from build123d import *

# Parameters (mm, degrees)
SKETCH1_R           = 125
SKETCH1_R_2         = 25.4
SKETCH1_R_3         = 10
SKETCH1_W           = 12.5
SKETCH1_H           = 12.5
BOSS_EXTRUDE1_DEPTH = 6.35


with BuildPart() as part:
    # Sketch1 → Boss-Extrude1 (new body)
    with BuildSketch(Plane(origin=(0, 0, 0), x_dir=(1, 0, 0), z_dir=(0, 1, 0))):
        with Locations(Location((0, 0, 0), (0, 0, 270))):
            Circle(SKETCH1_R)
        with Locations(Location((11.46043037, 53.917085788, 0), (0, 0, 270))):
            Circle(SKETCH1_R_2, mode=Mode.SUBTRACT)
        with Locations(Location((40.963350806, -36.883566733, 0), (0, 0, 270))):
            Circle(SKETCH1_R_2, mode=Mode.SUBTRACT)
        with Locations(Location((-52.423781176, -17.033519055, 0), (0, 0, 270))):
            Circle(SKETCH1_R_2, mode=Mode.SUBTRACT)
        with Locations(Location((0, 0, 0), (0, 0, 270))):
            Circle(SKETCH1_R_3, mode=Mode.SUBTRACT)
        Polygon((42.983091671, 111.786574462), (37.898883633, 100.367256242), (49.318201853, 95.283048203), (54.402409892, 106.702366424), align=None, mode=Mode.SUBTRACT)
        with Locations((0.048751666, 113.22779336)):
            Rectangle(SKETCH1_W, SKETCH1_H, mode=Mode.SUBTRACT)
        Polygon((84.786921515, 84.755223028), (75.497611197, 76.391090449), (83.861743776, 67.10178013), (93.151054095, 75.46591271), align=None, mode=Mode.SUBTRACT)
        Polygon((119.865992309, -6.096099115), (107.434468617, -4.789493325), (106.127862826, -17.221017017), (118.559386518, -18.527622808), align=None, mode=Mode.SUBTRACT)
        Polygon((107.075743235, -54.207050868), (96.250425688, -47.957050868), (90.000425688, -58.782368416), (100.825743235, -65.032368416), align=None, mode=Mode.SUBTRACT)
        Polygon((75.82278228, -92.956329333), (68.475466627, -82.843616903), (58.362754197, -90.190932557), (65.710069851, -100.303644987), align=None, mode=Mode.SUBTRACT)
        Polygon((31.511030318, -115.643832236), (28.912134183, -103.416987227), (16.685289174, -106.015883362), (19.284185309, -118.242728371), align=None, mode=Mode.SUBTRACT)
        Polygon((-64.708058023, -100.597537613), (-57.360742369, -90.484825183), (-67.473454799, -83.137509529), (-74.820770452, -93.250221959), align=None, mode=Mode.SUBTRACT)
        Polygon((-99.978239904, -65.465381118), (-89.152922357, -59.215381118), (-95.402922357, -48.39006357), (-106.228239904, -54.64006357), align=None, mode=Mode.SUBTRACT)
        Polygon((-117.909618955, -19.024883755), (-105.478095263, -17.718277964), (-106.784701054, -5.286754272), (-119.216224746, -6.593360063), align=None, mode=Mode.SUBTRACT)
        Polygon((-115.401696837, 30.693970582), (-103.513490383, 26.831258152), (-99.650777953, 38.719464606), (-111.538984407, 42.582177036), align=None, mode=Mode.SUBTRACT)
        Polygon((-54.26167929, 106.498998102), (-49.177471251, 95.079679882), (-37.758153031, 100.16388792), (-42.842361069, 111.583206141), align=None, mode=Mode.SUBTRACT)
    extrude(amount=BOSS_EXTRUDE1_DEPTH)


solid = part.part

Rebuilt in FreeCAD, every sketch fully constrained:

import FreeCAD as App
import Part
import Sketcher
from FreeCAD import Vector
Q = App.Units.Quantity


def add_polygon(sketch, points):
    """Adds a closed chain of lines whose ends are joined by coincident constraints."""
    first, n = sketch.GeometryCount, len(points)
    for a, b in zip(points, points[1:] + points[:1]):
        sketch.addGeometry(Part.LineSegment(App.Vector(*a, 0), App.Vector(*b, 0)), False)
    for i in range(n):
        sketch.addConstraint(Sketcher.Constraint("Coincident", first + i, 2, first + (i + 1) % n, 1))

doc = App.newDocument("Part")
body = doc.addObject("PartDesign::Body", "Body")

# Sketch on XZ plane
sketch1 = doc.addObject("Sketcher::SketchObject", "Sketch")
body.addObject(sketch1)
sketch1.AttachmentSupport = (doc.XZ_Plane, [""])
sketch1.MapMode = "FlatFace"
sketch1.addGeometry(Part.Circle(Vector(0, 0, 0), Vector(0, 0, 1), 125), False)  # 0
add_polygon(sketch1, [(-104, -27), (-115, -31), (-112, -43), (-100, -39)])  # lines 1-4
add_polygon(sketch1, [(-49, -95), (-54, -106), (-43, -112), (-38, -100)])  # lines 5-8
add_polygon(sketch1, [(6, -107), (-6, -107), (-6, -119), (6, -119)])  # lines 9-12
add_polygon(sketch1, [(-105, 18), (-118, 19), (-119, 7), (-107, 5)])  # lines 13-16
add_polygon(sketch1, [(-89, 59), (-100, 65), (-106, 55), (-95, 48)])  # lines 17-20
add_polygon(sketch1, [(-57, 90), (-65, 101), (-75, 93), (-67, 83)])  # lines 21-24
sketch1.addGeometry(Part.Circle(Vector(-52, 17, 0), Vector(0, 0, 1), 25), False)  # 25
sketch1.addGeometry(Part.Circle(Vector(0, 0, 0), Vector(0, 0, 1), 10), False)  # 26
add_polygon(sketch1, [(38, -100), (43, -112), (54, -107), (49, -95)])  # lines 27-30
sketch1.addGeometry(Part.Circle(Vector(11, -54, 0), Vector(0, 0, 1), 25), False)  # 31
add_polygon(sketch1, [(75, -76), (85, -85), (93, -75), (84, -67)])  # lines 32-35
sketch1.addGeometry(Part.Circle(Vector(41, 37, 0), Vector(0, 0, 1), 25), False)  # 36
add_polygon(sketch1, [(29, 103), (32, 116), (19, 118), (17, 106)])  # lines 37-40
add_polygon(sketch1, [(107, 5), (120, 6), (119, 19), (106, 17)])  # lines 41-44
add_polygon(sketch1, [(96, 48), (107, 54), (101, 65), (90, 59)])  # lines 45-48
add_polygon(sketch1, [(68, 83), (76, 93), (66, 100), (58, 90)])  # lines 49-52
sketch1.addConstraint([
    Sketcher.Constraint("Horizontal", 9),
    Sketcher.Constraint("Vertical", 10),
    Sketcher.Constraint("Horizontal", 11),
    Sketcher.Constraint("Vertical", 12),
    Sketcher.Constraint("Coincident", 0, 3, -1, 1),
    Sketcher.Constraint("Coincident", 26, 3, -1, 1),
    Sketcher.Constraint("Equal", 25, 31),
    Sketcher.Constraint("Equal", 31, 36),
    Sketcher.Constraint("Perpendicular", 1, 2),
    Sketcher.Constraint("Perpendicular", 2, 3),
    Sketcher.Constraint("Perpendicular", 3, 4),
    Sketcher.Constraint("Perpendicular", 5, 6),
    Sketcher.Constraint("Perpendicular", 6, 7),
    Sketcher.Constraint("Perpendicular", 7, 8),
    Sketcher.Constraint("Perpendicular", 13, 14),
    Sketcher.Constraint("Perpendicular", 14, 15),
    Sketcher.Constraint("Perpendicular", 15, 16),
    Sketcher.Constraint("Perpendicular", 17, 18),
    Sketcher.Constraint("Perpendicular", 18, 19),
    Sketcher.Constraint("Perpendicular", 19, 20),
    Sketcher.Constraint("Perpendicular", 21, 22),
    Sketcher.Constraint("Perpendicular", 22, 23),
    Sketcher.Constraint("Perpendicular", 23, 24),
    Sketcher.Constraint("Perpendicular", 27, 28),
    Sketcher.Constraint("Perpendicular", 28, 29),
    Sketcher.Constraint("Perpendicular", 29, 30),
    Sketcher.Constraint("Perpendicular", 32, 33),
    Sketcher.Constraint("Perpendicular", 33, 34),
    Sketcher.Constraint("Perpendicular", 34, 35),
    Sketcher.Constraint("Perpendicular", 37, 38),
    Sketcher.Constraint("Perpendicular", 38, 39),
    Sketcher.Constraint("Perpendicular", 39, 40),
    Sketcher.Constraint("Perpendicular", 41, 42),
    Sketcher.Constraint("Perpendicular", 42, 43),
    Sketcher.Constraint("Perpendicular", 43, 44),
    Sketcher.Constraint("Perpendicular", 45, 46),
    Sketcher.Constraint("Perpendicular", 46, 47),
    Sketcher.Constraint("Perpendicular", 47, 48),
    Sketcher.Constraint("Perpendicular", 49, 50),
    Sketcher.Constraint("Perpendicular", 50, 51),
    Sketcher.Constraint("Perpendicular", 51, 52),
    Sketcher.Constraint("Equal", 11, 10),
    Sketcher.Constraint("Equal", 1, 2),
    Sketcher.Constraint("Equal", 4, 5),
    Sketcher.Constraint("Equal", 5, 6),
    Sketcher.Constraint("Equal", 8, 13),
    Sketcher.Constraint("Equal", 13, 14),
    Sketcher.Constraint("Equal", 16, 17),
    Sketcher.Constraint("Equal", 17, 18),
    Sketcher.Constraint("Equal", 20, 21),
    Sketcher.Constraint("Equal", 21, 22),
    Sketcher.Constraint("Equal", 24, 27),
    Sketcher.Constraint("Equal", 27, 28),
    Sketcher.Constraint("Equal", 30, 32),
    Sketcher.Constraint("Equal", 32, 33),
    Sketcher.Constraint("Equal", 35, 37),
    Sketcher.Constraint("Equal", 37, 38),
    Sketcher.Constraint("Equal", 40, 41),
    Sketcher.Constraint("Equal", 41, 42),
    Sketcher.Constraint("Equal", 44, 45),
    Sketcher.Constraint("Equal", 45, 46),
    Sketcher.Constraint("Equal", 48, 49),
    Sketcher.Constraint("Equal", 49, 50),
    Sketcher.Constraint("Diameter", 0, 250.0),
    Sketcher.Constraint("Diameter", 26, 20.0),
    Sketcher.Constraint("Diameter", 25, 50.8),
    Sketcher.Constraint("Angle", 1, Q("-162 deg")),
    Sketcher.Constraint("Angle", 5, Q("-114 deg")),
    Sketcher.Constraint("Angle", 13, Q("174 deg")),
    Sketcher.Constraint("Angle", 17, Q("150 deg")),
    Sketcher.Constraint("Angle", 21, Q("126 deg")),
    Sketcher.Constraint("Angle", 27, Q("-66 deg")),
    Sketcher.Constraint("Angle", 32, Q("-42 deg")),
    Sketcher.Constraint("Angle", 37, Q("78 deg")),
    Sketcher.Constraint("Angle", 41, Q("6 deg")),
    Sketcher.Constraint("Angle", 45, Q("30 deg")),
    Sketcher.Constraint("Angle", 49, Q("54 deg")),
    Sketcher.Constraint("DistanceX", 9, 2, 9, 1, 12.5),
    Sketcher.Constraint("Distance", 1, 12.5),
    Sketcher.Constraint("DistanceY", 5, 2, -1, 1, 106.498998),
    Sketcher.Constraint("DistanceX", 15, 2, -1, 1, 106.784701),
    Sketcher.Constraint("DistanceX", -1, 1, 29, 2, 49.318202),
    Sketcher.Constraint("DistanceY", -1, 1, 41, 2, 6.096099),
    Sketcher.Constraint("DistanceX", 3, 2, 5, 2, 45.389099),
    Sketcher.Constraint("DistanceX", 8, 2, 31, 3, 60.637902),
    Sketcher.Constraint("DistanceX", 1, 2, 16, 2, 9.923602),
    Sketcher.Constraint("DistanceX", 28, 2, 35, 2, 21.095201),
    Sketcher.Constraint("DistanceX", 22, 2, 37, 2, 106.331801),
    Sketcher.Constraint("DistanceY", 36, 3, 47, 2, 21.898802),
    Sketcher.Constraint("DistanceY", 51, 2, 37, 2, 25.4529),
    Sketcher.Constraint("DistanceX", 25, 3, -1, 1, 52.423781),
    Sketcher.Constraint("DistanceY", -1, 1, 25, 3, 17.033519),
    Sketcher.Constraint("DistanceX", -1, 1, 36, 3, 40.963351),
    Sketcher.Constraint("DistanceY", 1, 2, -1, 1, 30.693971),
    Sketcher.Constraint("DistanceX", 9, 2, -1, 1, 6.201248),
    Sketcher.Constraint("DistanceY", -1, 1, 14, 2, 6.59336),
    Sketcher.Constraint("DistanceX", 17, 2, -1, 1, 99.97824),
    Sketcher.Constraint("DistanceY", -1, 1, 17, 2, 65.465381),
    Sketcher.Constraint("DistanceX", 21, 2, -1, 1, 64.708058),
    Sketcher.Constraint("DistanceY", -1, 1, 22, 2, 93.250222),
    Sketcher.Constraint("DistanceY", 29, 2, -1, 1, 95.283048),
    Sketcher.Constraint("DistanceY", 34, 2, -1, 1, 67.10178),
    Sketcher.Constraint("DistanceY", -1, 1, 38, 2, 118.242728),
    Sketcher.Constraint("DistanceX", -1, 1, 44, 2, 107.434469),
    Sketcher.Constraint("DistanceY", -1, 1, 45, 2, 54.207051),
    Sketcher.Constraint("DistanceX", -1, 1, 50, 2, 65.71007),
    Sketcher.Constraint("DistanceY", 31, 3, 2, 2, 11.334909),
    Sketcher.Constraint("DistanceY", 27, 2, 12, 2, 4.808781),
    Sketcher.Constraint("DistanceX", 43, 2, 45, 2, 0.94788),
])
pad1 = doc.addObject("PartDesign::Pad", "Pad")
body.addObject(pad1)
pad1.Profile = sketch1
pad1.Length = 6.35
pad1.Reversed = True

doc.recompute()
